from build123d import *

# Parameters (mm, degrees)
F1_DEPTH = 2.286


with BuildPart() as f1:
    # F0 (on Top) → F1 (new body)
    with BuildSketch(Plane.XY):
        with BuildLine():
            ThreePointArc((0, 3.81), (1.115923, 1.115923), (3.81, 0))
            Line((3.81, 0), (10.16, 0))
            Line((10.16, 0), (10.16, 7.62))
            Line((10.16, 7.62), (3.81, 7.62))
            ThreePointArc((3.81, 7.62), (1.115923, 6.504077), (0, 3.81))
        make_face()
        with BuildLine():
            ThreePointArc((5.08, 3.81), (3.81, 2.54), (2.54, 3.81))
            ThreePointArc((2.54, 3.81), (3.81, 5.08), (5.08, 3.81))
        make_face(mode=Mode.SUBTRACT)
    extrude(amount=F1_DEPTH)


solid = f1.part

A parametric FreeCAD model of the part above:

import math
import FreeCAD as App
import Part
import Sketcher
from FreeCAD import Vector
Q = App.Units.Quantity

doc = App.newDocument("Part")
params = doc.addObject("Spreadsheet::Sheet", "Params")
for row, (alias, value) in enumerate([
    ("sketch1_diameter", "0.1 in"),
    ("sketch1_radius", "0.15 in"),
    ("sketch1_width", "0.25 in"),
    ("pad1_length", "0.09 in"),
], start=1):
    params.set(f"A{row}", alias)
    params.set(f"B{row}", "=" + value)
    params.setAlias(f"B{row}", alias)

body = doc.addObject("PartDesign::Body", "Body")

sketch1 = body.newObject("Sketcher::SketchObject", "Sketch")
sketch1.AttachmentSupport = (doc.getObject("XY_Plane"), [""])
sketch1.MapMode = "FlatFace"
sketch1.addGeometry([
    Part.ArcOfCircle(Part.Circle(Vector(3.8, 3.8, 0), Vector(0, 0, 1), 3.8), math.radians(180), math.radians(270)),
    Part.LineSegment(Vector(3.8, 0, 0), Vector(10.2, 0, 0)),
    Part.LineSegment(Vector(10.2, 0, 0), Vector(10.2, 7.6, 0)),
    Part.LineSegment(Vector(10.2, 7.6, 0), Vector(3.8, 7.6, 0)),
    Part.ArcOfCircle(Part.Circle(Vector(3.8, 3.8, 0), Vector(0, 0, 1), 3.8), math.radians(90), math.radians(180)),
    Part.Circle(Vector(3.8, 3.8, 0), Vector(0, 0, 1), 1.3),
], False)
sketch1.addConstraint([
    Sketcher.Constraint("Tangent", 0, 2, 1, 1),
    Sketcher.Constraint("Coincident", 1, 2, 2, 1),
    Sketcher.Constraint("Coincident", 2, 2, 3, 1),
    Sketcher.Constraint("Tangent", 3, 2, 4, 1),
    Sketcher.Constraint("Tangent", 4, 2, 0, 1),
    Sketcher.Constraint("Horizontal", 1),
    Sketcher.Constraint("Vertical", 2),
    Sketcher.Constraint("Horizontal", 3),
    Sketcher.Constraint("Coincident", 5, 3, 0, 3),
    Sketcher.Constraint("Equal", 0, 4),
    Sketcher.Constraint("PointOnObject", 0, 2, -1),
    Sketcher.Constraint("PointOnObject", 4, 2, -2),
    Sketcher.Constraint("Horizontal", 5, 3, 4, 2),
    Sketcher.Constraint("Diameter", 5, Q("0.1 in")),
    Sketcher.Constraint("Radius", 0, Q("0.15 in")),
    Sketcher.Constraint("DistanceX", 1, 1, 1, 2, Q("0.25 in")),
])
sketch1.setExpression("Constraints[13]", "Params.sketch1_diameter")
sketch1.setExpression("Constraints[14]", "Params.sketch1_radius")
sketch1.setExpression("Constraints[15]", "Params.sketch1_width")
pad1 = body.newObject("PartDesign::Pad", "Pad")
pad1.Profile = sketch1
pad1.setExpression("Length", "Params.pad1_length")

doc.recompute()
